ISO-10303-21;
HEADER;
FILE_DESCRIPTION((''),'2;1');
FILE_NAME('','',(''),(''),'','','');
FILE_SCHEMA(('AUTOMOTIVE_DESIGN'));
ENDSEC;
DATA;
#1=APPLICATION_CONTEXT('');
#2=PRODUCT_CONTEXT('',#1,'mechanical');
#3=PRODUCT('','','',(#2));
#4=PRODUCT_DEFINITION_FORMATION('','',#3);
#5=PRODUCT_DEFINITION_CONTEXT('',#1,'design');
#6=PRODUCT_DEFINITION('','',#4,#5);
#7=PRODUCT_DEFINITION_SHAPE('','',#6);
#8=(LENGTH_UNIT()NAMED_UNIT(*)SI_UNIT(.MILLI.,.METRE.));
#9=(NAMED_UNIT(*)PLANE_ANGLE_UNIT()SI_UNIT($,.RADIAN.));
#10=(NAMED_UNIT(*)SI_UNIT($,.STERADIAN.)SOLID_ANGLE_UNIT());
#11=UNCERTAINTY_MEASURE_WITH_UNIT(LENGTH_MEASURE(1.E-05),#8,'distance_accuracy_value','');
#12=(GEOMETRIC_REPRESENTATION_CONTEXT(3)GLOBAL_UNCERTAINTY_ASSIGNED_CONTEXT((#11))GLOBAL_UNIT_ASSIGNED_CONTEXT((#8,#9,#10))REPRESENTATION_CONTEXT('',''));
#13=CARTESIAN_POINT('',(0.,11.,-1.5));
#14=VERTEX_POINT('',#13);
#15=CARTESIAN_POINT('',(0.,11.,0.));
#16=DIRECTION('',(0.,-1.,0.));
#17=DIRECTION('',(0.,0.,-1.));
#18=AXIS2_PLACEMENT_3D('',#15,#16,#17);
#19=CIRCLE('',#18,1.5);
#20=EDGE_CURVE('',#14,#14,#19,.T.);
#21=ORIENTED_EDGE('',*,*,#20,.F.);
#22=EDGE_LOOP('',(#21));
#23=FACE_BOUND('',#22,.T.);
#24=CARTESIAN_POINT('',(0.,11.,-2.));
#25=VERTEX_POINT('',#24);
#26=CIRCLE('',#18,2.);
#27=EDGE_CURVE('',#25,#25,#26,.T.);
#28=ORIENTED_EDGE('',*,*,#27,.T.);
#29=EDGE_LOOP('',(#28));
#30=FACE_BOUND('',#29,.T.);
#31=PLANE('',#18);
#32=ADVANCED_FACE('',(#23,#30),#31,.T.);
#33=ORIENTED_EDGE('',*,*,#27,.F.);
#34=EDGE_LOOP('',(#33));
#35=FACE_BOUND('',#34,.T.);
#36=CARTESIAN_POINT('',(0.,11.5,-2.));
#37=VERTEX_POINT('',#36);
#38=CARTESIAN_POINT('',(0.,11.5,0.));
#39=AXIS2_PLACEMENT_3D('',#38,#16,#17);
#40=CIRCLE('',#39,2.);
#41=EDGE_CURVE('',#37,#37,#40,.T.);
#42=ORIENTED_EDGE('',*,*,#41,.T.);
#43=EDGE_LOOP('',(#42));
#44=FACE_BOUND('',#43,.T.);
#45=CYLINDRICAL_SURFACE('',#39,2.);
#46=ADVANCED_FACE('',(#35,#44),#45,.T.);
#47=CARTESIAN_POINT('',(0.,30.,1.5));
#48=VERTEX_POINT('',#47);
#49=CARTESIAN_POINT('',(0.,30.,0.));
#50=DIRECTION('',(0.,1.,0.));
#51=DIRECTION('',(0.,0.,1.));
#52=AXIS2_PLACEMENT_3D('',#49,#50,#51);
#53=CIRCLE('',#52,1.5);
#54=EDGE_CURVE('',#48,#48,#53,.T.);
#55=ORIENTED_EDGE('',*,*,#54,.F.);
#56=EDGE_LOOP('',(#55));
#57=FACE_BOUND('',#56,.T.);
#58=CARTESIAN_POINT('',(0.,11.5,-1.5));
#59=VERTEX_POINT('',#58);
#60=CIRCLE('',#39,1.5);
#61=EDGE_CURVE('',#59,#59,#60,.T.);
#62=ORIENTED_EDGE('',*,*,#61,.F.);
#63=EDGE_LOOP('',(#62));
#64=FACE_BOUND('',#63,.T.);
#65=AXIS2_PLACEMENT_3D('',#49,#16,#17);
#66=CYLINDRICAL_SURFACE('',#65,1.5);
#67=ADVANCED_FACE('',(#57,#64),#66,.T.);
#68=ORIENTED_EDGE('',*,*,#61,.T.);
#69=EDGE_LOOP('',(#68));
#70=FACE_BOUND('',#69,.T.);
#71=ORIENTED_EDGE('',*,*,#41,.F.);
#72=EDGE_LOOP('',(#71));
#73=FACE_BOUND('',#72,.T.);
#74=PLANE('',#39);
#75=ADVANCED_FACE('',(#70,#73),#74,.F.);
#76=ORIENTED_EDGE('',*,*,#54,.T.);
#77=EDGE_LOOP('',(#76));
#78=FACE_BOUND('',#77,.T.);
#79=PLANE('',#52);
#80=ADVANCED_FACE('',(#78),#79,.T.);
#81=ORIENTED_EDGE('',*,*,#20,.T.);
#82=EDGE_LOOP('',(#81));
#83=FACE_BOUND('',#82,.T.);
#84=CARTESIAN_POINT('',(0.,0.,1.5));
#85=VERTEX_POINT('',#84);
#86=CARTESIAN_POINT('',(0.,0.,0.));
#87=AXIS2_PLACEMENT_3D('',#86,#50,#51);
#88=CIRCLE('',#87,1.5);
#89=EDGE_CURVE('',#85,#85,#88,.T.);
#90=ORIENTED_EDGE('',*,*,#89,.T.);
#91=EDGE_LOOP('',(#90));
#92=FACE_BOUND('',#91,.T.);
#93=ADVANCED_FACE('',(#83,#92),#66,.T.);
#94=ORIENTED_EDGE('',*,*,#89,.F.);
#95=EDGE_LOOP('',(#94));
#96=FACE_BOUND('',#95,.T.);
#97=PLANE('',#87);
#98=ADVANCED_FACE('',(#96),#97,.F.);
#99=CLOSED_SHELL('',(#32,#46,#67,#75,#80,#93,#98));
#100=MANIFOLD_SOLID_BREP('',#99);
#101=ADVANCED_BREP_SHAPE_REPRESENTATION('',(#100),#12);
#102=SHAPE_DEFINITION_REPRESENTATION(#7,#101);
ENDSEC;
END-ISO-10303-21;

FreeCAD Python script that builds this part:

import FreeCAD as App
import Part
import Sketcher

V = App.Vector

doc = App.newDocument("Part")
body = doc.addObject("PartDesign::Body", "Body")

sketch1 = doc.addObject("Sketcher::SketchObject", "Sketch")
body.addObject(sketch1)
sketch1.AttachmentSupport = (doc.XZ_Plane, [""])
sketch1.MapMode = "FlatFace"
sketch1.addGeometry(Part.Circle(V(0, 0, 0), V(0, 0, 1), 1.5), False)
sketch1.addConstraint([
    Sketcher.Constraint("Coincident", 0, 3, -1, 1),
    Sketcher.Constraint("Diameter", 0, 3.0),
])
pad1 = doc.addObject("PartDesign::Pad", "Pad")
body.addObject(pad1)
pad1.Profile = sketch1
pad1.Length = 30
pad1.Reversed = True

sketch2 = doc.addObject("Sketcher::SketchObject", "Sketch001")
body.addObject(sketch2)
sketch2.AttachmentSupport = (doc.XZ_Plane, [""])
sketch2.MapMode = "FlatFace"
sketch2.AttachmentOffset = App.Placement(V(0, 0, -11), App.Rotation())
sketch2.addGeometry([
    Part.Circle(V(0, 0, 0), V(0, 0, 1), 2),
    Part.Circle(V(0, 0, 0), V(0, 0, 1), 1.5),
], False)
sketch2.addConstraint([
    Sketcher.Constraint("Coincident", 0, 3, -1, 1),
    Sketcher.Constraint("Coincident", 1, 3, -1, 1),
    Sketcher.Constraint("Diameter", 0, 4.0),
    Sketcher.Constraint("Diameter", 1, 3.0),
])
pad2 = doc.addObject("PartDesign::Pad", "Pad001")
body.addObject(pad2)
pad2.Profile = sketch2
pad2.Length = 0.5
pad2.Reversed = True

doc.recompute()
